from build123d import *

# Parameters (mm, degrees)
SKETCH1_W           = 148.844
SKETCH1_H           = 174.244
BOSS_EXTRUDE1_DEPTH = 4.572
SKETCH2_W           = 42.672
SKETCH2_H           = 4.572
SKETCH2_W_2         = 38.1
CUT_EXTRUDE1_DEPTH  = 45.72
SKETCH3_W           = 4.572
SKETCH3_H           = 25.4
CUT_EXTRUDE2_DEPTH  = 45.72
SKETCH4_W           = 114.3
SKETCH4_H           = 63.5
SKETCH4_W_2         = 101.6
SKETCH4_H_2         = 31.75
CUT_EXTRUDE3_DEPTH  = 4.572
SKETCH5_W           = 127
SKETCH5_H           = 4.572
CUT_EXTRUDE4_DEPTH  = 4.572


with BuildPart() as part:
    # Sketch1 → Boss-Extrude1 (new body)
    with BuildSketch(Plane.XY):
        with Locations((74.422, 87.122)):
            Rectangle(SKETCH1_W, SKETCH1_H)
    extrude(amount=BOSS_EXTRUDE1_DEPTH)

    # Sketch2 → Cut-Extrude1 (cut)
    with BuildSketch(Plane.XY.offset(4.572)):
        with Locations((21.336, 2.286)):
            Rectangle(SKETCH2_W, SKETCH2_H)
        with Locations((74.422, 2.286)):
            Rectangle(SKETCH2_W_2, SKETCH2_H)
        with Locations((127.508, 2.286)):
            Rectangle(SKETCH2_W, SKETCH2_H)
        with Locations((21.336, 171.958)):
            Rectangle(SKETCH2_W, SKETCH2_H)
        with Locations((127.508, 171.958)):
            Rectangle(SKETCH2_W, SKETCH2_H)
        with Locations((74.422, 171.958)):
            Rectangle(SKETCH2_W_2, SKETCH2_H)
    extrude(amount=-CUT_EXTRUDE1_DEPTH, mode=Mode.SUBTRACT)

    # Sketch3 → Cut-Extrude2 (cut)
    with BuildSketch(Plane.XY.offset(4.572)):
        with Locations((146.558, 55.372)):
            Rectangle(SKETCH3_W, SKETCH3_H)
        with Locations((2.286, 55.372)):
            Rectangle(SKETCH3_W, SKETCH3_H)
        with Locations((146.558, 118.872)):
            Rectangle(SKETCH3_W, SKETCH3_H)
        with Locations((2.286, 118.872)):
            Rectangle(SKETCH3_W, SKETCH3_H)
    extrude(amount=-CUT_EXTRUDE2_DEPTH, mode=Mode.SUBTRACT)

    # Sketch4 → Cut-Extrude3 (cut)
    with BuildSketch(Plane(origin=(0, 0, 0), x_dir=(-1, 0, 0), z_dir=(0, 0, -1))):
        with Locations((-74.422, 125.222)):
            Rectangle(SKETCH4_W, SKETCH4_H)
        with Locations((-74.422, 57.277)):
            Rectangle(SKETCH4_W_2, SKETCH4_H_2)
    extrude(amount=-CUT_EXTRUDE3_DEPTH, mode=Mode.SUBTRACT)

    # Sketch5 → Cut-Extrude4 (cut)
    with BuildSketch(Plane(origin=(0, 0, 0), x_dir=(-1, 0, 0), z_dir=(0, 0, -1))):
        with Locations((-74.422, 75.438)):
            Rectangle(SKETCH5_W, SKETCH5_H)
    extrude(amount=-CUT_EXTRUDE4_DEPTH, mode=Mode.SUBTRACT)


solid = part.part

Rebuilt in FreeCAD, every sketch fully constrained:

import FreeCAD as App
import Part
import Sketcher

V = App.Vector
Q = App.Units.Quantity

doc = App.newDocument("Part")
body = doc.addObject("PartDesign::Body", "Body")

sketch1 = body.newObject("Sketcher::SketchObject", "Sketch")
sketch1.AttachmentSupport = (doc.getObject("XY_Plane"), [""])
sketch1.MapMode = "FlatFace"
sketch1.addGeometry(Part.LineSegment(V(0, 174, 0), V(0, 0, 0)), False)
sketch1.addGeometry(Part.LineSegment(V(0, 0, 0), V(149, 0, 0)), False)
sketch1.addGeometry(Part.LineSegment(V(149, 0, 0), V(149, 174, 0)), False)
sketch1.addGeometry(Part.LineSegment(V(149, 174, 0), V(0, 174, 0)), False)
sketch1.addConstraint(Sketcher.Constraint("Coincident", 0, 2, 1, 1))
sketch1.addConstraint(Sketcher.Constraint("Coincident", 1, 2, 2, 1))
sketch1.addConstraint(Sketcher.Constraint("Coincident", 2, 2, 3, 1))
sketch1.addConstraint(Sketcher.Constraint("Coincident", 3, 2, 0, 1))
sketch1.addConstraint(Sketcher.Constraint("Vertical", 0))
sketch1.addConstraint(Sketcher.Constraint("Horizontal", 1))
sketch1.addConstraint(Sketcher.Constraint("Vertical", 2))
sketch1.addConstraint(Sketcher.Constraint("Horizontal", 3))
sketch1.addConstraint(Sketcher.Constraint("Coincident", 0, 2, -1, 1))
sketch1.addConstraint(Sketcher.Constraint("DistanceX", 1, 1, 1, 2, Q("5.86 in")))
sketch1.addConstraint(Sketcher.Constraint("DistanceY", 0, 2, 0, 1, Q("6.86 in")))
pad1 = body.newObject("PartDesign::Pad", "Pad")
pad1.Profile = sketch1
pad1.Length = Q("0.18 in")

sketch2 = body.newObject("Sketcher::SketchObject", "Sketch001")
sketch2.AttachmentSupport = (doc.getObject("XY_Plane"), [""])
sketch2.MapMode = "FlatFace"
sketch2.AttachmentOffset = App.Placement(V(0, 0, 0.18 * 25.4), App.Rotation())
sketch2.addGeometry(Part.LineSegment(V(0, 4.6, 0), V(0, 0, 0)), False)
sketch2.addGeometry(Part.LineSegment(V(0, 0, 0), V(42.7, 0, 0)), False)
sketch2.addGeometry(Part.LineSegment(V(42.7, 0, 0), V(42.7, 4.6, 0)), False)
sketch2.addGeometry(Part.LineSegment(V(42.7, 4.6, 0), V(0, 4.6, 0)), False)
sketch2.addGeometry(Part.LineSegment(V(55.4, 4.6, 0), V(55.4, 0, 0)), False)
sketch2.addGeometry(Part.LineSegment(V(55.4, 0, 0), V(93.5, 0, 0)), False)
sketch2.addGeometry(Part.LineSegment(V(93.5, 0, 0), V(93.5, 4.6, 0)), False)
sketch2.addGeometry(Part.LineSegment(V(93.5, 4.6, 0), V(55.4, 4.6, 0)), False)
sketch2.addGeometry(Part.LineSegment(V(106.2, 4.6, 0), V(106.2, 0, 0)), False)
sketch2.addGeometry(Part.LineSegment(V(106.2, 0, 0), V(148.8, 0, 0)), False)
sketch2.addGeometry(Part.LineSegment(V(148.8, 0, 0), V(148.8, 4.6, 0)), False)
sketch2.addGeometry(Part.LineSegment(V(148.8, 4.6, 0), V(106.2, 4.6, 0)), False)
sketch2.addGeometry(Part.LineSegment(V(0, 174.2, 0), V(0, 169.7, 0)), False)
sketch2.addGeometry(Part.LineSegment(V(0, 169.7, 0), V(42.7, 169.7, 0)), False)
sketch2.addGeometry(Part.LineSegment(V(42.7, 169.7, 0), V(42.7, 174.2, 0)), False)
sketch2.addGeometry(Part.LineSegment(V(42.7, 174.2, 0), V(0, 174.2, 0)), False)
sketch2.addGeometry(Part.LineSegment(V(106.2, 174.2, 0), V(106.2, 169.7, 0)), False)
sketch2.addGeometry(Part.LineSegment(V(106.2, 169.7, 0), V(148.8, 169.7, 0)), False)
sketch2.addGeometry(Part.LineSegment(V(148.8, 169.7, 0), V(148.8, 174.2, 0)), False)
sketch2.addGeometry(Part.LineSegment(V(148.8, 174.2, 0), V(106.2, 174.2, 0)), False)
sketch2.addGeometry(Part.LineSegment(V(55.4, 174.2, 0), V(55.4, 169.7, 0)), False)
sketch2.addGeometry(Part.LineSegment(V(55.4, 169.7, 0), V(93.5, 169.7, 0)), False)
sketch2.addGeometry(Part.LineSegment(V(93.5, 169.7, 0), V(93.5, 174.2, 0)), False)
sketch2.addGeometry(Part.LineSegment(V(93.5, 174.2, 0), V(55.4, 174.2, 0)), False)
sketch2.addConstraint(Sketcher.Constraint("Coincident", 0, 2, 1, 1))
sketch2.addConstraint(Sketcher.Constraint("Coincident", 1, 2, 2, 1))
sketch2.addConstraint(Sketcher.Constraint("Coincident", 2, 2, 3, 1))
sketch2.addConstraint(Sketcher.Constraint("Coincident", 3, 2, 0, 1))
sketch2.addConstraint(Sketcher.Constraint("Coincident", 4, 2, 5, 1))
sketch2.addConstraint(Sketcher.Constraint("Coincident", 5, 2, 6, 1))
sketch2.addConstraint(Sketcher.Constraint("Coincident", 6, 2, 7, 1))
sketch2.addConstraint(Sketcher.Constraint("Coincident", 7, 2, 4, 1))
sketch2.addConstraint(Sketcher.Constraint("Coincident", 8, 2, 9, 1))
sketch2.addConstraint(Sketcher.Constraint("Coincident", 9, 2, 10, 1))
sketch2.addConstraint(Sketcher.Constraint("Coincident", 10, 2, 11, 1))
sketch2.addConstraint(Sketcher.Constraint("Coincident", 11, 2, 8, 1))
sketch2.addConstraint(Sketcher.Constraint("Coincident", 12, 2, 13, 1))
sketch2.addConstraint(Sketcher.Constraint("Coincident", 13, 2, 14, 1))
sketch2.addConstraint(Sketcher.Constraint("Coincident", 14, 2, 15, 1))
sketch2.addConstraint(Sketcher.Constraint("Coincident", 15, 2, 12, 1))
sketch2.addConstraint(Sketcher.Constraint("Coincident", 16, 2, 17, 1))
sketch2.addConstraint(Sketcher.Constraint("Coincident", 17, 2, 18, 1))
sketch2.addConstraint(Sketcher.Constraint("Coincident", 18, 2, 19, 1))
sketch2.addConstraint(Sketcher.Constraint("Coincident", 19, 2, 16, 1))
sketch2.addConstraint(Sketcher.Constraint("Coincident", 20, 2, 21, 1))
sketch2.addConstraint(Sketcher.Constraint("Coincident", 21, 2, 22, 1))
sketch2.addConstraint(Sketcher.Constraint("Coincident", 22, 2, 23, 1))
sketch2.addConstraint(Sketcher.Constraint("Coincident", 23, 2, 20, 1))
sketch2.addConstraint(Sketcher.Constraint("Vertical", 0))
sketch2.addConstraint(Sketcher.Constraint("Horizontal", 1))
sketch2.addConstraint(Sketcher.Constraint("Vertical", 2))
sketch2.addConstraint(Sketcher.Constraint("Horizontal", 3))
sketch2.addConstraint(Sketcher.Constraint("Vertical", 4))
sketch2.addConstraint(Sketcher.Constraint("Horizontal", 5))
sketch2.addConstraint(Sketcher.Constraint("Vertical", 6))
sketch2.addConstraint(Sketcher.Constraint("Horizontal", 7))
sketch2.addConstraint(Sketcher.Constraint("Vertical", 8))
sketch2.addConstraint(Sketcher.Constraint("Horizontal", 9))
sketch2.addConstraint(Sketcher.Constraint("Vertical", 10))
sketch2.addConstraint(Sketcher.Constraint("Horizontal", 11))
sketch2.addConstraint(Sketcher.Constraint("Vertical", 12))
sketch2.addConstraint(Sketcher.Constraint("Horizontal", 13))
sketch2.addConstraint(Sketcher.Constraint("Vertical", 14))
sketch2.addConstraint(Sketcher.Constraint("Horizontal", 15))
sketch2.addConstraint(Sketcher.Constraint("Vertical", 16))
sketch2.addConstraint(Sketcher.Constraint("Horizontal", 17))
sketch2.addConstraint(Sketcher.Constraint("Vertical", 18))
sketch2.addConstraint(Sketcher.Constraint("Horizontal", 19))
sketch2.addConstraint(Sketcher.Constraint("Vertical", 20))
sketch2.addConstraint(Sketcher.Constraint("Horizontal", 21))
sketch2.addConstraint(Sketcher.Constraint("Vertical", 22))
sketch2.addConstraint(Sketcher.Constraint("Horizontal", 23))
sketch2.addConstraint(Sketcher.Constraint("Coincident", 0, 2, -1, 1))
sketch2.addConstraint(Sketcher.Constraint("PointOnObject", 4, 2, -1))
sketch2.addConstraint(Sketcher.Constraint("PointOnObject", 8, 2, -1))
sketch2.addConstraint(Sketcher.Constraint("PointOnObject", 12, 2, -2))
sketch2.addConstraint(Sketcher.Constraint("Horizontal", 3, 2, 6, 2))
sketch2.addConstraint(Sketcher.Constraint("Horizontal", 7, 2, 10, 2))
sketch2.addConstraint(Sketcher.Constraint("Horizontal", 13, 2, 16, 2))
sketch2.addConstraint(Sketcher.Constraint("Horizontal", 15, 2, 18, 2))
sketch2.addConstraint(Sketcher.Constraint("Horizontal", 17, 2, 20, 2))
sketch2.addConstraint(Sketcher.Constraint("Horizontal", 19, 2, 22, 2))
sketch2.addConstraint(Sketcher.Constraint("Vertical", 2, 2, 13, 2))
sketch2.addConstraint(Sketcher.Constraint("Vertical", 11, 2, 16, 2))
sketch2.addConstraint(Sketcher.Constraint("Vertical", 10, 2, 17, 2))
sketch2.addConstraint(Sketcher.Constraint("Vertical", 7, 2, 20, 2))
sketch2.addConstraint(Sketcher.Constraint("Vertical", 6, 2, 21, 2))
sketch2.addConstraint(Sketcher.Constraint("Equal", 3, 9))
sketch2.addConstraint(Sketcher.Constraint("Equal", 10, 12))
sketch2.addConstraint(Sketcher.Constraint("DistanceX", 5, 1, 5, 2, Q("1.5 in")))
sketch2.addConstraint(Sketcher.Constraint("DistanceX", 1, 2, 5, 2, Q("2 in")))
sketch2.addConstraint(Sketcher.Constraint("DistanceX", 4, 2, 8, 2, Q("2 in")))
sketch2.addConstraint(Sketcher.Constraint("DistanceX", 1, 1, 1, 2, Q("1.68 in")))
sketch2.addConstraint(Sketcher.Constraint("DistanceY", 0, 2, 0, 1, Q("0.18 in")))
sketch2.addConstraint(Sketcher.Constraint("DistanceY", 3, 2, 12, 2, Q("6.5 in")))
pocket1 = body.newObject("PartDesign::Pocket", "Pocket")
pocket1.Profile = sketch2
pocket1.Length = Q("1.8 in")

sketch3 = body.newObject("Sketcher::SketchObject", "Sketch002")
sketch3.AttachmentSupport = (doc.getObject("XY_Plane"), [""])
sketch3.MapMode = "FlatFace"
sketch3.AttachmentOffset = App.Placement(V(0, 0, 0.18 * 25.4), App.Rotation())
sketch3.addGeometry(Part.LineSegment(V(144.3, 68.1, 0), V(144.3, 42.7, 0)), False)
sketch3.addGeometry(Part.LineSegment(V(144.3, 42.7, 0), V(148.8, 42.7, 0)), False)
sketch3.addGeometry(Part.LineSegment(V(148.8, 42.7, 0), V(148.8, 68.1, 0)), False)
sketch3.addGeometry(Part.LineSegment(V(148.8, 68.1, 0), V(144.3, 68.1, 0)), False)
sketch3.addGeometry(Part.LineSegment(V(0, 68.1, 0), V(0, 42.7, 0)), False)
sketch3.addGeometry(Part.LineSegment(V(0, 42.7, 0), V(4.6, 42.7, 0)), False)
sketch3.addGeometry(Part.LineSegment(V(4.6, 42.7, 0), V(4.6, 68.1, 0)), False)
sketch3.addGeometry(Part.LineSegment(V(4.6, 68.1, 0), V(0, 68.1, 0)), False)
sketch3.addGeometry(Part.LineSegment(V(144.3, 131.6, 0), V(144.3, 106.2, 0)), False)
sketch3.addGeometry(Part.LineSegment(V(144.3, 106.2, 0), V(148.8, 106.2, 0)), False)
sketch3.addGeometry(Part.LineSegment(V(148.8, 106.2, 0), V(148.8, 131.6, 0)), False)
sketch3.addGeometry(Part.LineSegment(V(148.8, 131.6, 0), V(144.3, 131.6, 0)), False)
sketch3.addGeometry(Part.LineSegment(V(0, 131.6, 0), V(0, 106.2, 0)), False)
sketch3.addGeometry(Part.LineSegment(V(0, 106.2, 0), V(4.6, 106.2, 0)), False)
sketch3.addGeometry(Part.LineSegment(V(4.6, 106.2, 0), V(4.6, 131.6, 0)), False)
sketch3.addGeometry(Part.LineSegment(V(4.6, 131.6, 0), V(0, 131.6, 0)), False)
sketch3.addConstraint(Sketcher.Constraint("Coincident", 0, 2, 1, 1))
sketch3.addConstraint(Sketcher.Constraint("Coincident", 1, 2, 2, 1))
sketch3.addConstraint(Sketcher.Constraint("Coincident", 2, 2, 3, 1))
sketch3.addConstraint(Sketcher.Constraint("Coincident", 3, 2, 0, 1))
sketch3.addConstraint(Sketcher.Constraint("Coincident", 4, 2, 5, 1))
sketch3.addConstraint(Sketcher.Constraint("Coincident", 5, 2, 6, 1))
sketch3.addConstraint(Sketcher.Constraint("Coincident", 6, 2, 7, 1))
sketch3.addConstraint(Sketcher.Constraint("Coincident", 7, 2, 4, 1))
sketch3.addConstraint(Sketcher.Constraint("Coincident", 8, 2, 9, 1))
sketch3.addConstraint(Sketcher.Constraint("Coincident", 9, 2, 10, 1))
sketch3.addConstraint(Sketcher.Constraint("Coincident", 10, 2, 11, 1))
sketch3.addConstraint(Sketcher.Constraint("Coincident", 11, 2, 8, 1))
sketch3.addConstraint(Sketcher.Constraint("Coincident", 12, 2, 13, 1))
sketch3.addConstraint(Sketcher.Constraint("Coincident", 13, 2, 14, 1))
sketch3.addConstraint(Sketcher.Constraint("Coincident", 14, 2, 15, 1))
sketch3.addConstraint(Sketcher.Constraint("Coincident", 15, 2, 12, 1))
sketch3.addConstraint(Sketcher.Constraint("Vertical", 0))
sketch3.addConstraint(Sketcher.Constraint("Horizontal", 1))
sketch3.addConstraint(Sketcher.Constraint("Vertical", 2))
sketch3.addConstraint(Sketcher.Constraint("Horizontal", 3))
sketch3.addConstraint(Sketcher.Constraint("Vertical", 4))
sketch3.addConstraint(Sketcher.Constraint("Horizontal", 5))
sketch3.addConstraint(Sketcher.Constraint("Vertical", 6))
sketch3.addConstraint(Sketcher.Constraint("Horizontal", 7))
sketch3.addConstraint(Sketcher.Constraint("Vertical", 8))
sketch3.addConstraint(Sketcher.Constraint("Horizontal", 9))
sketch3.addConstraint(Sketcher.Constraint("Vertical", 10))
sketch3.addConstraint(Sketcher.Constraint("Horizontal", 11))
sketch3.addConstraint(Sketcher.Constraint("Vertical", 12))
sketch3.addConstraint(Sketcher.Constraint("Horizontal", 13))
sketch3.addConstraint(Sketcher.Constraint("Vertical", 14))
sketch3.addConstraint(Sketcher.Constraint("Horizontal", 15))
sketch3.addConstraint(Sketcher.Constraint("PointOnObject", 4, 2, -2))
sketch3.addConstraint(Sketcher.Constraint("PointOnObject", 12, 2, -2))
sketch3.addConstraint(Sketcher.Constraint("Horizontal", 1, 2, 4, 2))
sketch3.addConstraint(Sketcher.Constraint("Horizontal", 3, 2, 6, 2))
sketch3.addConstraint(Sketcher.Constraint("Horizontal", 9, 2, 12, 2))
sketch3.addConstraint(Sketcher.Constraint("Horizontal", 11, 2, 14, 2))
sketch3.addConstraint(Sketcher.Constraint("Vertical", 3, 2, 8, 2))
sketch3.addConstraint(Sketcher.Constraint("Vertical", 2, 2, 9, 2))
sketch3.addConstraint(Sketcher.Constraint("Vertical", 6, 2, 13, 2))
sketch3.addConstraint(Sketcher.Constraint("Equal", 3, 5))
sketch3.addConstraint(Sketcher.Constraint("Equal", 6, 8))
sketch3.addConstraint(Sketcher.Constraint("DistanceY", 0, 2, 0, 1, Q("1 in")))
sketch3.addConstraint(Sketcher.Constraint("DistanceX", 1, 1, 1, 2, Q("0.18 in")))
sketch3.addConstraint(Sketcher.Constraint("DistanceX", 5, 2, 0, 2, Q("5.5 in")))
sketch3.addConstraint(Sketcher.Constraint("DistanceY", 3, 2, 8, 2, Q("1.5 in")))
sketch3.addConstraint(Sketcher.Constraint("DistanceY", -1, 1, 0, 2, Q("1.68 in")))
pocket2 = body.newObject("PartDesign::Pocket", "Pocket001")
pocket2.Profile = sketch3
pocket2.Length = Q("1.8 in")

sketch4 = body.newObject("Sketcher::SketchObject", "Sketch003")
sketch4.AttachmentSupport = (doc.getObject("XY_Plane"), [""])
sketch4.MapMode = "FlatFace"
sketch4.addGeometry(Part.LineSegment(V(132, 157, 0), V(132, 93, 0)), False)
sketch4.addGeometry(Part.LineSegment(V(132, 93, 0), V(17, 93, 0)), False)
sketch4.addGeometry(Part.LineSegment(V(17, 93, 0), V(17, 157, 0)), False)
sketch4.addGeometry(Part.LineSegment(V(17, 157, 0), V(132, 157, 0)), False)
sketch4.addGeometry(Part.LineSegment(V(125, 73, 0), V(125, 41, 0)), False)
sketch4.addGeometry(Part.LineSegment(V(125, 41, 0), V(24, 41, 0)), False)
sketch4.addGeometry(Part.LineSegment(V(24, 41, 0), V(24, 73, 0)), False)
sketch4.addGeometry(Part.LineSegment(V(24, 73, 0), V(125, 73, 0)), False)
sketch4.addConstraint(Sketcher.Constraint("Coincident", 0, 2, 1, 1))
sketch4.addConstraint(Sketcher.Constraint("Coincident", 1, 2, 2, 1))
sketch4.addConstraint(Sketcher.Constraint("Coincident", 2, 2, 3, 1))
sketch4.addConstraint(Sketcher.Constraint("Coincident", 3, 2, 0, 1))
sketch4.addConstraint(Sketcher.Constraint("Coincident", 4, 2, 5, 1))
sketch4.addConstraint(Sketcher.Constraint("Coincident", 5, 2, 6, 1))
sketch4.addConstraint(Sketcher.Constraint("Coincident", 6, 2, 7, 1))
sketch4.addConstraint(Sketcher.Constraint("Coincident", 7, 2, 4, 1))
sketch4.addConstraint(Sketcher.Constraint("Vertical", 0))
sketch4.addConstraint(Sketcher.Constraint("Horizontal", 1))
sketch4.addConstraint(Sketcher.Constraint("Vertical", 2))
sketch4.addConstraint(Sketcher.Constraint("Horizontal", 3))
sketch4.addConstraint(Sketcher.Constraint("Vertical", 4))
sketch4.addConstraint(Sketcher.Constraint("Horizontal", 5))
sketch4.addConstraint(Sketcher.Constraint("Vertical", 6))
sketch4.addConstraint(Sketcher.Constraint("Horizontal", 7))
sketch4.addConstraint(Sketcher.Constraint("DistanceX", 5, 2, 5, 1, Q("4 in")))
sketch4.addConstraint(Sketcher.Constraint("DistanceX", 1, 2, 1, 1, Q("4.5 in")))
sketch4.addConstraint(Sketcher.Constraint("DistanceY", 0, 2, 0, 1, Q("2.5 in")))
sketch4.addConstraint(Sketcher.Constraint("DistanceY", 4, 2, 4, 1, Q("1.25 in")))
sketch4.addConstraint(Sketcher.Constraint("DistanceY", 6, 2, 1, 2, Q("0.8 in")))
sketch4.addConstraint(Sketcher.Constraint("DistanceX", -1, 1, 0, 2, Q("5.18 in")))
sketch4.addConstraint(Sketcher.Constraint("DistanceY", -1, 1, 0, 2, Q("3.68 in")))
sketch4.addConstraint(Sketcher.Constraint("DistanceX", -1, 1, 4, 2, Q("4.93 in")))
pocket3 = body.newObject("PartDesign::Pocket", "Pocket002")
pocket3.Profile = sketch4
pocket3.Length = Q("0.18 in")
pocket3.Reversed = True

sketch5 = body.newObject("Sketcher::SketchObject", "Sketch004")
sketch5.AttachmentSupport = (doc.getObject("XY_Plane"), [""])
sketch5.MapMode = "FlatFace"
sketch5.addGeometry(Part.LineSegment(V(137.9, 77.7, 0), V(137.9, 73.2, 0)), False)
sketch5.addGeometry(Part.LineSegment(V(137.9, 73.2, 0), V(10.9, 73.2, 0)), False)
sketch5.addGeometry(Part.LineSegment(V(10.9, 73.2, 0), V(10.9, 77.7, 0)), False)
sketch5.addGeometry(Part.LineSegment(V(10.9, 77.7, 0), V(137.9, 77.7, 0)), False)
sketch5.addConstraint(Sketcher.Constraint("Coincident", 0, 2, 1, 1))
sketch5.addConstraint(Sketcher.Constraint("Coincident", 1, 2, 2, 1))
sketch5.addConstraint(Sketcher.Constraint("Coincident", 2, 2, 3, 1))
sketch5.addConstraint(Sketcher.Constraint("Coincident", 3, 2, 0, 1))
sketch5.addConstraint(Sketcher.Constraint("Vertical", 0))
sketch5.addConstraint(Sketcher.Constraint("Horizontal", 1))
sketch5.addConstraint(Sketcher.Constraint("Vertical", 2))
sketch5.addConstraint(Sketcher.Constraint("Horizontal", 3))
sketch5.addConstraint(Sketcher.Constraint("DistanceX", 1, 2, 1, 1, Q("5 in")))
sketch5.addConstraint(Sketcher.Constraint("DistanceY", 0, 2, 0, 1, Q("0.18 in")))
sketch5.addConstraint(Sketcher.Constraint("DistanceX", -1, 1, 0, 2, Q("5.43 in")))
sketch5.addConstraint(Sketcher.Constraint("DistanceY", -1, 1, 0, 2, Q("2.88 in")))
pocket4 = body.newObject("PartDesign::Pocket", "Pocket003")
pocket4.Profile = sketch5
pocket4.Length = Q("0.18 in")
pocket4.Reversed = True

doc.recompute()
